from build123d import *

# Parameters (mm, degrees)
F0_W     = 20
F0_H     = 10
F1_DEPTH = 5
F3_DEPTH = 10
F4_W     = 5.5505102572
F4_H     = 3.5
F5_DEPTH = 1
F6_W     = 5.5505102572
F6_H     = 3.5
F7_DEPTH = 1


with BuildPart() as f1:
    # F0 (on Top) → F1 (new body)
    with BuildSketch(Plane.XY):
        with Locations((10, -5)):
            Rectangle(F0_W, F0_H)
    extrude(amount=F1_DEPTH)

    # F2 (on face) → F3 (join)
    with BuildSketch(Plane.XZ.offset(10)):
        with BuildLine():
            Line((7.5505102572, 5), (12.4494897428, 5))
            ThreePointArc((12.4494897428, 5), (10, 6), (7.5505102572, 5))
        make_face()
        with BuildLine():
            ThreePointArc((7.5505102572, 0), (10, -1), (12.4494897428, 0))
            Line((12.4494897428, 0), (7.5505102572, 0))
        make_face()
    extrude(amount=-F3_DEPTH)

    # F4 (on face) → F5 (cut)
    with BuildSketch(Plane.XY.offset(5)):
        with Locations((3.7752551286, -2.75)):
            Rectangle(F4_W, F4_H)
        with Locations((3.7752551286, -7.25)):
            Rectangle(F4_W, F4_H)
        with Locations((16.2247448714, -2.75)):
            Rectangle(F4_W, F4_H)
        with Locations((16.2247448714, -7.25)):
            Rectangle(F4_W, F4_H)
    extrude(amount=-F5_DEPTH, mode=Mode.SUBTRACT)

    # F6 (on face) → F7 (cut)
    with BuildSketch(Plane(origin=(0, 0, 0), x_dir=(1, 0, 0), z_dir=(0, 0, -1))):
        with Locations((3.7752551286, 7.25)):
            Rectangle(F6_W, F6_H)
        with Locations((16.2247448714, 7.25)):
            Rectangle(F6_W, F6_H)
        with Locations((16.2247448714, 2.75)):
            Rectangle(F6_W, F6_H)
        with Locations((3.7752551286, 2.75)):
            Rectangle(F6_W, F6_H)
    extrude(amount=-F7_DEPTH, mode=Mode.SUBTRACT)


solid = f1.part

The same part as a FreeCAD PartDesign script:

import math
import FreeCAD as App
import Part
import Sketcher
from FreeCAD import Vector


def add_polygon(sketch, points):
    """Adds a closed chain of lines whose ends are joined by coincident constraints."""
    first, n = sketch.GeometryCount, len(points)
    for a, b in zip(points, points[1:] + points[:1]):
        sketch.addGeometry(Part.LineSegment(App.Vector(*a, 0), App.Vector(*b, 0)), False)
    for i in range(n):
        sketch.addConstraint(Sketcher.Constraint("Coincident", first + i, 2, first + (i + 1) % n, 1))

doc = App.newDocument("Part")
body = doc.addObject("PartDesign::Body", "Body")

# Sketch on XY plane
sketch1 = body.newObject("Sketcher::SketchObject", "Sketch")
sketch1.AttachmentSupport = (doc.getObject("XY_Plane"), [""])
sketch1.MapMode = "FlatFace"
add_polygon(sketch1, [(0, 0), (0, -10), (20, -10), (20, 0)])  # lines 0-3
sketch1.addConstraint([
    Sketcher.Constraint("Vertical", 0),
    Sketcher.Constraint("Horizontal", 1),
    Sketcher.Constraint("Vertical", 2),
    Sketcher.Constraint("Horizontal", 3),
    Sketcher.Constraint("Coincident", 3, 2, -1, 1),
    Sketcher.Constraint("DistanceX", 1, 1, 1, 2, 20.0),
    Sketcher.Constraint("DistanceY", 0, 2, 0, 1, 10.0),
])
pad1 = body.newObject("PartDesign::Pad", "Pad")
pad1.Profile = sketch1
pad1.Length = 5

# Sketch on XZ plane
sketch2 = body.newObject("Sketcher::SketchObject", "Sketch001")
sketch2.AttachmentSupport = (doc.getObject("XZ_Plane"), [""])
sketch2.MapMode = "FlatFace"
sketch2.AttachmentOffset = App.Placement(Vector(0, 0, 10), App.Rotation())
sketch2.addGeometry([
    Part.LineSegment(Vector(7.6, 5, 0), Vector(12.4, 5, 0)),
    Part.ArcOfCircle(Part.Circle(Vector(10, 2.5, 0), Vector(0, 0, 1), 3.5), math.radians(46), math.radians(134)),
    Part.ArcOfCircle(Part.Circle(Vector(10, 2.5, 0), Vector(0, 0, 1), 3.5), math.radians(-134), math.radians(-46)),
    Part.LineSegment(Vector(12.4, 0, 0), Vector(7.6, 0, 0)),
], False)
sketch2.addConstraint([
    Sketcher.Constraint("Coincident", 0, 1, 1, 2),
    Sketcher.Constraint("Coincident", 1, 1, 0, 2),
    Sketcher.Constraint("Coincident", 2, 1, 3, 2),
    Sketcher.Constraint("Coincident", 3, 1, 2, 2),
    Sketcher.Constraint("Horizontal", 0),
    Sketcher.Constraint("Horizontal", 3),
    Sketcher.Constraint("Coincident", 2, 3, 1, 3),
    Sketcher.Constraint("Equal", 1, 2),
    Sketcher.Constraint("PointOnObject", 2, 1, -1),
    Sketcher.Constraint("Vertical", 0, 1, 2, 1),
    Sketcher.Constraint("Radius", 1, 3.5),
    Sketcher.Constraint("DistanceX", -1, 1, 1, 3, 10.0),
    Sketcher.Constraint("DistanceY", -1, 1, 0, 1, 5.0),
])
pad2 = body.newObject("PartDesign::Pad", "Pad001")
pad2.Profile = sketch2
pad2.Length = 10
pad2.Reversed = True

# Sketch on XY plane
sketch3 = body.newObject("Sketcher::SketchObject", "Sketch002")
sketch3.AttachmentSupport = (doc.getObject("XY_Plane"), [""])
sketch3.MapMode = "FlatFace"
sketch3.AttachmentOffset = App.Placement(Vector(0, 0, 5), App.Rotation())
add_polygon(sketch3, [(1, -1), (1, -4.5), (6.6, -4.5), (6.6, -1)])  # lines 0-3
add_polygon(sketch3, [(1, -5.5), (1, -9), (6.6, -9), (6.6, -5.5)])  # lines 4-7
add_polygon(sketch3, [(13.4, -1), (13.4, -4.5), (19, -4.5), (19, -1)])  # lines 8-11
add_polygon(sketch3, [(13.4, -5.5), (13.4, -9), (19, -9), (19, -5.5)])  # lines 12-15
sketch3.addConstraint([
    Sketcher.Constraint("Vertical", 0),
    Sketcher.Constraint("Horizontal", 1),
    Sketcher.Constraint("Vertical", 2),
    Sketcher.Constraint("Horizontal", 3),
    Sketcher.Constraint("Vertical", 4),
    Sketcher.Constraint("Horizontal", 5),
    Sketcher.Constraint("Vertical", 6),
    Sketcher.Constraint("Horizontal", 7),
    Sketcher.Constraint("Vertical", 8),
    Sketcher.Constraint("Horizontal", 9),
    Sketcher.Constraint("Vertical", 10),
    Sketcher.Constraint("Horizontal", 11),
    Sketcher.Constraint("Vertical", 12),
    Sketcher.Constraint("Horizontal", 13),
    Sketcher.Constraint("Vertical", 14),
    Sketcher.Constraint("Horizontal", 15),
    Sketcher.Constraint("Horizontal", 1, 2, 8, 2),
    Sketcher.Constraint("Horizontal", 3, 2, 10, 2),
    Sketcher.Constraint("Horizontal", 5, 2, 12, 2),
    Sketcher.Constraint("Horizontal", 7, 2, 14, 2),
    Sketcher.Constraint("Vertical", 3, 2, 4, 2),
    Sketcher.Constraint("Vertical", 2, 2, 5, 2),
    Sketcher.Constraint("Vertical", 11, 2, 12, 2),
    Sketcher.Constraint("Vertical", 10, 2, 13, 2),
    Sketcher.Constraint("Equal", 7, 9),
    Sketcher.Constraint("Equal", 2, 4),
    Sketcher.Constraint("DistanceY", 0, 2, 0, 1, 3.5),
    Sketcher.Constraint("DistanceX", -1, 1, 0, 2, 1.0),
    Sketcher.Constraint("DistanceY", 2, 2, -1, 1, 1.0),
    Sketcher.Constraint("DistanceY", 4, 2, -1, 1, 9.0),
    Sketcher.Constraint("DistanceX", -1, 1, 9, 2, 19.0),
    Sketcher.Constraint("DistanceX", 1, 1, 1, 2, 5.55051),
])
pocket1 = body.newObject("PartDesign::Pocket", "Pocket")
pocket1.Profile = sketch3
pocket1.Length = 1

# Sketch on XY plane
sketch4 = body.newObject("Sketcher::SketchObject", "Sketch003")
sketch4.AttachmentSupport = (doc.getObject("XY_Plane"), [""])
sketch4.MapMode = "FlatFace"
add_polygon(sketch4, [(1, -9), (1, -5.5), (6.6, -5.5), (6.6, -9)])  # lines 0-3
add_polygon(sketch4, [(13.4, -9), (13.4, -5.5), (19, -5.5), (19, -9)])  # lines 4-7
add_polygon(sketch4, [(13.4, -4.5), (13.4, -1), (19, -1), (19, -4.5)])  # lines 8-11
add_polygon(sketch4, [(1, -4.5), (1, -1), (6.6, -1), (6.6, -4.5)])  # lines 12-15
sketch4.addConstraint([
    Sketcher.Constraint("Vertical", 0),
    Sketcher.Constraint("Horizontal", 1),
    Sketcher.Constraint("Vertical", 2),
    Sketcher.Constraint("Horizontal", 3),
    Sketcher.Constraint("Vertical", 4),
    Sketcher.Constraint("Horizontal", 5),
    Sketcher.Constraint("Vertical", 6),
    Sketcher.Constraint("Horizontal", 7),
    Sketcher.Constraint("Vertical", 8),
    Sketcher.Constraint("Horizontal", 9),
    Sketcher.Constraint("Vertical", 10),
    Sketcher.Constraint("Horizontal", 11),
    Sketcher.Constraint("Vertical", 12),
    Sketcher.Constraint("Horizontal", 13),
    Sketcher.Constraint("Vertical", 14),
    Sketcher.Constraint("Horizontal", 15),
    Sketcher.Constraint("Horizontal", 1, 2, 4, 2),
    Sketcher.Constraint("Horizontal", 3, 2, 6, 2),
    Sketcher.Constraint("Horizontal", 9, 2, 12, 2),
    Sketcher.Constraint("Horizontal", 11, 2, 14, 2),
    Sketcher.Constraint("Vertical", 7, 2, 8, 2),
    Sketcher.Constraint("Vertical", 6, 2, 9, 2),
    Sketcher.Constraint("Vertical", 3, 2, 12, 2),
    Sketcher.Constraint("Vertical", 2, 2, 13, 2),
    Sketcher.Constraint("Equal", 3, 5),
    Sketcher.Constraint("Equal", 6, 8),
    Sketcher.Constraint("DistanceY", 0, 1, 0, 2, 3.5),
    Sketcher.Constraint("DistanceX", -1, 1, 0, 2, 1.0),
    Sketcher.Constraint("DistanceY", 2, 2, -1, 1, 9.0),
    Sketcher.Constraint("DistanceX", -1, 1, 5, 2, 19.0),
    Sketcher.Constraint("DistanceY", 8, 2, -1, 1, 1.0),
    Sketcher.Constraint("DistanceX", 1, 1, 1, 2, 5.55051),
])
pocket2 = body.newObject("PartDesign::Pocket", "Pocket001")
pocket2.Profile = sketch4
pocket2.Length = 1
pocket2.Reversed = True

doc.recompute()
